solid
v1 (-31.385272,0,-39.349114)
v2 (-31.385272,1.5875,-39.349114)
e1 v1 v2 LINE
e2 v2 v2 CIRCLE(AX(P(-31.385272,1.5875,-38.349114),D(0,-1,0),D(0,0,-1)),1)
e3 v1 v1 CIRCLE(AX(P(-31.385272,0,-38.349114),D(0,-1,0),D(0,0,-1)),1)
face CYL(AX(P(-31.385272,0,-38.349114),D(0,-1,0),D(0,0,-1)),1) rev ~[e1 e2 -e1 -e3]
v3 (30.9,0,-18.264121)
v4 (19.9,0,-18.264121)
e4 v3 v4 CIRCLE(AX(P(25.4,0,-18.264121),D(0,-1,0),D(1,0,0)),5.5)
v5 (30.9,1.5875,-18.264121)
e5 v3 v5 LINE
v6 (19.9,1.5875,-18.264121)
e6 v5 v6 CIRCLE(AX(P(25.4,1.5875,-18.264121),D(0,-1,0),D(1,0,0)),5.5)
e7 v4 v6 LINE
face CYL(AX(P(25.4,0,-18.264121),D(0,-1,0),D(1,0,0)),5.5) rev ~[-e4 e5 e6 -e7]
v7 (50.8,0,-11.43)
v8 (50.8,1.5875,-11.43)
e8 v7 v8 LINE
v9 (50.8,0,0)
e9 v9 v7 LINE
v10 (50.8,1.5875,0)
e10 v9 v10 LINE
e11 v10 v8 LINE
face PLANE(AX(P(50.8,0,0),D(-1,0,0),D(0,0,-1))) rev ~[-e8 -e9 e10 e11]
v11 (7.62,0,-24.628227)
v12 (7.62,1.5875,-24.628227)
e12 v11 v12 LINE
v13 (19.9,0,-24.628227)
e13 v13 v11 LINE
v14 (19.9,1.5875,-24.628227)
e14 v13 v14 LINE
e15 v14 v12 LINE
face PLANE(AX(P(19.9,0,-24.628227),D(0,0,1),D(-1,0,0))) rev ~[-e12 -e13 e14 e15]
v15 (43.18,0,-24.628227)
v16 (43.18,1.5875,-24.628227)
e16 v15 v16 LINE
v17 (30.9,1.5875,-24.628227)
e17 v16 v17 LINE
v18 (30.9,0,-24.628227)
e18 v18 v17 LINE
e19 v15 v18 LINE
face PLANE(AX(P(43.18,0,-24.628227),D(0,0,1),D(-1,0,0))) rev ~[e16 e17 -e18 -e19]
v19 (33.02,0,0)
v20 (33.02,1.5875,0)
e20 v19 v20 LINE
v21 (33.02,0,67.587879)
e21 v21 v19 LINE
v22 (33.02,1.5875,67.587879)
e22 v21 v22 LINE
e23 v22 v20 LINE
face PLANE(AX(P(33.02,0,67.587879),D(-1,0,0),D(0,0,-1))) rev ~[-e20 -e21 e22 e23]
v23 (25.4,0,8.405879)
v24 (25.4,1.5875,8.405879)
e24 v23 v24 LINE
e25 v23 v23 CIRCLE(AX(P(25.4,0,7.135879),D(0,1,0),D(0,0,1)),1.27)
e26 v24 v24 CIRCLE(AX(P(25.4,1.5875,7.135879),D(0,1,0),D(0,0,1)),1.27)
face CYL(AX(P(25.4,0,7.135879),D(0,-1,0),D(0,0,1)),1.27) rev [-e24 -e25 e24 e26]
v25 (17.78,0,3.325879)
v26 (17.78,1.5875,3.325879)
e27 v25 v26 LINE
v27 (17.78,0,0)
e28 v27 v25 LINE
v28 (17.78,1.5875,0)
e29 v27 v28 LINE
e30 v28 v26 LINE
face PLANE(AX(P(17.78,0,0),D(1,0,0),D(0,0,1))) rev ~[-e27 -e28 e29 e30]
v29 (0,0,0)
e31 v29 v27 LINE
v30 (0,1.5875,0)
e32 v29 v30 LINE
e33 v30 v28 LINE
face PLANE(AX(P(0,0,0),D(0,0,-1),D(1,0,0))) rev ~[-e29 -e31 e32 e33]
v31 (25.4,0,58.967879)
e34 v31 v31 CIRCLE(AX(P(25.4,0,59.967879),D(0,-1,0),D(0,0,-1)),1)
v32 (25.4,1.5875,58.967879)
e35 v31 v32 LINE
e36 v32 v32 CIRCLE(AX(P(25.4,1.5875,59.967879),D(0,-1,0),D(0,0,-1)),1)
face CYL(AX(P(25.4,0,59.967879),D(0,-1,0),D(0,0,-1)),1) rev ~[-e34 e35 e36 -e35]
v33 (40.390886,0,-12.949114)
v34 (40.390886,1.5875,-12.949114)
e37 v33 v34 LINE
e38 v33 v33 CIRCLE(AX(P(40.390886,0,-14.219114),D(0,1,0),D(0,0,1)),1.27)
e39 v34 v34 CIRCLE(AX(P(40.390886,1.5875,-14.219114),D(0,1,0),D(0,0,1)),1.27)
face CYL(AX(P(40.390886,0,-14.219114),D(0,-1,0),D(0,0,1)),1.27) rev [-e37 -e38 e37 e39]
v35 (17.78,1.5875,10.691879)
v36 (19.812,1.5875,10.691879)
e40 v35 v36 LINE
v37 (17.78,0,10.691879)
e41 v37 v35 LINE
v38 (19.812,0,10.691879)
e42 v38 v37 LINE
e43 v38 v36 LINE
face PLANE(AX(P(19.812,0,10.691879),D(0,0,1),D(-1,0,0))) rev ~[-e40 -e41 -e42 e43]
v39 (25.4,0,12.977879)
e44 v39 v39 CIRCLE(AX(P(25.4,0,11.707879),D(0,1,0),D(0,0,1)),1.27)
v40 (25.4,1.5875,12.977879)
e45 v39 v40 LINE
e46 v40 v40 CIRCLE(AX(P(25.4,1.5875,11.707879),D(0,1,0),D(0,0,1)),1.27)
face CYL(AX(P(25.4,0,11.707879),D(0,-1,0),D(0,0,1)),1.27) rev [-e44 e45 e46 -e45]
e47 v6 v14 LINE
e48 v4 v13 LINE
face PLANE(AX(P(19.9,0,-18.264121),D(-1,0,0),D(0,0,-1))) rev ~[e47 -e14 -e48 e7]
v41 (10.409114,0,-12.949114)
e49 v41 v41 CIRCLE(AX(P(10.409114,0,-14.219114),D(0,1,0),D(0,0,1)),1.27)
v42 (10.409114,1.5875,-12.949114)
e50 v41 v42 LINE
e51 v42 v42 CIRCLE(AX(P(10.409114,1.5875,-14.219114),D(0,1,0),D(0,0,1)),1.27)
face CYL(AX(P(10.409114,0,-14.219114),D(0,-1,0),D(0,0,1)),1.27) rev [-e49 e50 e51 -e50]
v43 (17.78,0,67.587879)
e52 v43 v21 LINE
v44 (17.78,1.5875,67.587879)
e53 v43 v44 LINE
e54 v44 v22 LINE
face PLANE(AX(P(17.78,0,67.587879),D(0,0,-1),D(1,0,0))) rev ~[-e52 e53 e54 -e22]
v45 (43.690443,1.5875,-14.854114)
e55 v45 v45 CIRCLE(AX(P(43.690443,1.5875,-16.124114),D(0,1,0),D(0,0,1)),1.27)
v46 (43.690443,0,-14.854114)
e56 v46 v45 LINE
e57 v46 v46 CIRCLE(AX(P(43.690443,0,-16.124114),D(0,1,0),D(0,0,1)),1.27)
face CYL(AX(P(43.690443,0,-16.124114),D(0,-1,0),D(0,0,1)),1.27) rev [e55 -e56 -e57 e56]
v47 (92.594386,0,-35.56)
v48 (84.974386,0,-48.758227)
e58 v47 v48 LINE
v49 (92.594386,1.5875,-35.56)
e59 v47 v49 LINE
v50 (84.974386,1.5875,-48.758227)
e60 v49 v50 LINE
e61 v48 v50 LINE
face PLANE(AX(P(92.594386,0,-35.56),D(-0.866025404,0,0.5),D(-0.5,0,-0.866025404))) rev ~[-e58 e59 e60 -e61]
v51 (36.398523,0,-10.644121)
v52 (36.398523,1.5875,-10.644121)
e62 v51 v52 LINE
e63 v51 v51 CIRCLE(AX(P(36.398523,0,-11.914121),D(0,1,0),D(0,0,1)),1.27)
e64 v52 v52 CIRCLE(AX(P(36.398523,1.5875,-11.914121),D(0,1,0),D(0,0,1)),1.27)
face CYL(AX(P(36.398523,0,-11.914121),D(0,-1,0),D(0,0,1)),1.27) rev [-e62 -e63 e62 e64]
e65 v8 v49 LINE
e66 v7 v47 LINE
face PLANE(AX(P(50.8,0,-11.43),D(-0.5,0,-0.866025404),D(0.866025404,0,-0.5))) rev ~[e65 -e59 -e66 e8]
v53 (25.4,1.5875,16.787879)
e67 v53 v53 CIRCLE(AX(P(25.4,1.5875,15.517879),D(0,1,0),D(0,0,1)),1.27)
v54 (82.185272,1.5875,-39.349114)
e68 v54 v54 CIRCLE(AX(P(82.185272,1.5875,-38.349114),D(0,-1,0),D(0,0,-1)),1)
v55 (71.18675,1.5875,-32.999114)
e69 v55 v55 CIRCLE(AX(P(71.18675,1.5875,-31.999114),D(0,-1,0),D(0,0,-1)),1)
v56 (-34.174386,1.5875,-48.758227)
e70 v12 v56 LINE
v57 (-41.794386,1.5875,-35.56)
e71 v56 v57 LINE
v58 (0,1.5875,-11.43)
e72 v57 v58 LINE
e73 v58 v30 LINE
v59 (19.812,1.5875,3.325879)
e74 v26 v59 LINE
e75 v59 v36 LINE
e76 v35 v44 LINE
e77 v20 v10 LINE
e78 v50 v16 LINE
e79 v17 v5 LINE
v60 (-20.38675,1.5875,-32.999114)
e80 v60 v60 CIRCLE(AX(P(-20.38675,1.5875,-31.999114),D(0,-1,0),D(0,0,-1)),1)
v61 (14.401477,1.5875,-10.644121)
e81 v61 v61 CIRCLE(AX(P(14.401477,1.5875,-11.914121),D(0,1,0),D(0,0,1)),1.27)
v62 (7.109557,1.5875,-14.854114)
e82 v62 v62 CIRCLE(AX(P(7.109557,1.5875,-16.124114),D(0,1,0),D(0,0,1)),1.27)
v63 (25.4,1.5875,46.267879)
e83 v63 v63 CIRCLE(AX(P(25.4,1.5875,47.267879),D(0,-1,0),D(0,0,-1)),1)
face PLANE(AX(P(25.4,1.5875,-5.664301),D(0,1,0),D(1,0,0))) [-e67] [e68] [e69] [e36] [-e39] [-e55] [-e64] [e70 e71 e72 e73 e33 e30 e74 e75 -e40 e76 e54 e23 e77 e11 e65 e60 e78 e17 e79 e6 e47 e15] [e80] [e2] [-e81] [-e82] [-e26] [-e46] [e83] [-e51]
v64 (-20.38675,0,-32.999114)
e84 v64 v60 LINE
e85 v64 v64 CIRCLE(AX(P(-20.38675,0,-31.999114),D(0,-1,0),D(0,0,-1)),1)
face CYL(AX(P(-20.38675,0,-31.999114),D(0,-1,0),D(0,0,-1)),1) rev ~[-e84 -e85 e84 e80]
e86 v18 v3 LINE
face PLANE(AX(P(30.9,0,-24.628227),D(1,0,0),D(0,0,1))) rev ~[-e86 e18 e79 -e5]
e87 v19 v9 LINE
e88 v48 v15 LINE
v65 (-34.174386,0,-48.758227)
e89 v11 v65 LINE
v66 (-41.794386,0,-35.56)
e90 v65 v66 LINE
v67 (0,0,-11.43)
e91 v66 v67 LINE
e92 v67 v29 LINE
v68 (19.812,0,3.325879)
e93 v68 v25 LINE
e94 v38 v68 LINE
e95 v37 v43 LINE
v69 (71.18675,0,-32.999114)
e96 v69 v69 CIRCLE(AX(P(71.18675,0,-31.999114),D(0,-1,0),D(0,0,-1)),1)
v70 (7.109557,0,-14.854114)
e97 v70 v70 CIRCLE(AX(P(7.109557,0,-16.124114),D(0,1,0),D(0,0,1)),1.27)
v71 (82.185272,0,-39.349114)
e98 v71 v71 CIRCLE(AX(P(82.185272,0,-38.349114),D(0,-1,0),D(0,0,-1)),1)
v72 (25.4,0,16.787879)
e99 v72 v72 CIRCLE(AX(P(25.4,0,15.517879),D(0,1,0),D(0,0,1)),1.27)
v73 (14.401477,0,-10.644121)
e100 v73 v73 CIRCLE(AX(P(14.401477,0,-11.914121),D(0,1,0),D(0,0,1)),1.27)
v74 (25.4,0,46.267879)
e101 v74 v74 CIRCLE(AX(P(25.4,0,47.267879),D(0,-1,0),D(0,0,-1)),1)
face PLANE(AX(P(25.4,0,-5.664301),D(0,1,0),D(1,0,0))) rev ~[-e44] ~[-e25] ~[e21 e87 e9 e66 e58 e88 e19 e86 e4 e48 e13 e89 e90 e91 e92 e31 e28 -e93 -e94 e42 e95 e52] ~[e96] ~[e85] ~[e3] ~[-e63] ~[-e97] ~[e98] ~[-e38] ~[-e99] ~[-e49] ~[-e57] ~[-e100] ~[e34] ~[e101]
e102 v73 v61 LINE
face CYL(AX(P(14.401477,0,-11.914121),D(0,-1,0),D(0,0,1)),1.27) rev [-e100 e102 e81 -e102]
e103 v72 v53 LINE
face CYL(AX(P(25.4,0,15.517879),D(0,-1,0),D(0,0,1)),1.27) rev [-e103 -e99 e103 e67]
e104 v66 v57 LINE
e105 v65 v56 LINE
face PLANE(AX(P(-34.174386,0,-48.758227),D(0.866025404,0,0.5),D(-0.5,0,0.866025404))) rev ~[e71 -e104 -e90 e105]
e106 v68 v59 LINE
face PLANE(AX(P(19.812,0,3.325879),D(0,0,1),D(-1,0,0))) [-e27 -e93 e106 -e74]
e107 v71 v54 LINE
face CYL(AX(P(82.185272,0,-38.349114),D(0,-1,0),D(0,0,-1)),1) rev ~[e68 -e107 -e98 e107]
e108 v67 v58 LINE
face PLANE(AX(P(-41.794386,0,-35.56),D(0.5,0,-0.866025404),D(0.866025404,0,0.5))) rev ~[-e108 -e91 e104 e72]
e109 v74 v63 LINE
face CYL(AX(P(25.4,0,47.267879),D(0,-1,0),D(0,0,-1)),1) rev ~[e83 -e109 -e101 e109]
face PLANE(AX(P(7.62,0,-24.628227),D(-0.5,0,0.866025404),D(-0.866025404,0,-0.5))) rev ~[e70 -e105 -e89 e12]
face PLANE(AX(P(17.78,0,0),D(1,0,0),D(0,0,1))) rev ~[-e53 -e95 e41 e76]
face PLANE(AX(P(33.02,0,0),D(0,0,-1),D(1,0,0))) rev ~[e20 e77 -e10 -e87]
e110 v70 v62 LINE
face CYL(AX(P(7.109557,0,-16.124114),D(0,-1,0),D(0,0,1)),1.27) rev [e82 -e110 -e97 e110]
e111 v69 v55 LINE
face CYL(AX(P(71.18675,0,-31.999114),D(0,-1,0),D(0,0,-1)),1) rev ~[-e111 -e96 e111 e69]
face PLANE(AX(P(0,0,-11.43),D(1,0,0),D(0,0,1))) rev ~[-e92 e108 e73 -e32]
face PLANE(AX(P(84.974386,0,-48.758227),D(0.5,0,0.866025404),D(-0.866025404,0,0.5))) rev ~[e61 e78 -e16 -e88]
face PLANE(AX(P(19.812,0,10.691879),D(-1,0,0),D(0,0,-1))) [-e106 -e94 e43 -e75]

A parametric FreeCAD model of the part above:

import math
import FreeCAD as App
import Part
import Sketcher
Q = App.Units.Quantity

doc = App.newDocument("Part")
body = doc.addObject("PartDesign::Body", "Body")

sketch1 = doc.addObject("Sketcher::SketchObject", "Sketch")
body.addObject(sketch1)
sketch1.AttachmentSupport = (doc.XZ_Plane, [""])
sketch1.MapMode = "FlatFace"
sketch1.addGeometry(Part.LineSegment(App.Vector(-41.8, -35.6, 0), App.Vector(0, -11.4, 0)), False)
sketch1.addGeometry(Part.LineSegment(App.Vector(0, -11.4, 0), App.Vector(0, 0, 0)), False)
sketch1.addGeometry(Part.LineSegment(App.Vector(0, 0, 0), App.Vector(17.8, 0, 0)), False)
sketch1.addGeometry(Part.LineSegment(App.Vector(17.8, 0, 0), App.Vector(17.8, 67.6, 0)), False)
sketch1.addGeometry(Part.LineSegment(App.Vector(17.8, 67.6, 0), App.Vector(33, 67.6, 0)), False)
sketch1.addGeometry(Part.LineSegment(App.Vector(33, 67.6, 0), App.Vector(33, 0, 0)), False)
sketch1.addGeometry(Part.LineSegment(App.Vector(33, 0, 0), App.Vector(50.8, 0, 0)), False)
sketch1.addGeometry(Part.LineSegment(App.Vector(50.8, 0, 0), App.Vector(50.8, -11.4, 0)), False)
sketch1.addGeometry(Part.LineSegment(App.Vector(50.8, -11.4, 0), App.Vector(92.6, -35.6, 0)), False)
sketch1.addGeometry(Part.LineSegment(App.Vector(92.6, -35.6, 0), App.Vector(85, -48.8, 0)), False)
sketch1.addGeometry(Part.LineSegment(App.Vector(85, -48.8, 0), App.Vector(43.2, -24.6, 0)), False)
sketch1.addGeometry(Part.LineSegment(App.Vector(43.2, -24.6, 0), App.Vector(30.9, -24.6, 0)), False)
sketch1.addGeometry(Part.LineSegment(App.Vector(30.9, -24.6, 0), App.Vector(30.9, -18.3, 0)), False)
sketch1.addGeometry(Part.ArcOfCircle(Part.Circle(App.Vector(25.4, -18.3, 0), App.Vector(0, 0, 1), 5.5), math.radians(0), math.radians(180)), False)
sketch1.addGeometry(Part.LineSegment(App.Vector(19.9, -18.3, 0), App.Vector(19.9, -24.6, 0)), False)
sketch1.addGeometry(Part.LineSegment(App.Vector(19.9, -24.6, 0), App.Vector(7.6, -24.6, 0)), False)
sketch1.addGeometry(Part.LineSegment(App.Vector(7.6, -24.6, 0), App.Vector(-34.2, -48.8, 0)), False)
sketch1.addGeometry(Part.LineSegment(App.Vector(-34.2, -48.8, 0), App.Vector(-41.8, -35.6, 0)), False)
sketch1.addGeometry(Part.Circle(App.Vector(25.4, 15.5, 0), App.Vector(0, 0, 1), 1.3), False)
sketch1.addGeometry(Part.Circle(App.Vector(25.4, 11.7, 0), App.Vector(0, 0, 1), 1.3), False)
sketch1.addGeometry(Part.Circle(App.Vector(25.4, 7.1, 0), App.Vector(0, 0, 1), 1.3), False)
sketch1.addGeometry(Part.Circle(App.Vector(14.4, -11.9, 0), App.Vector(0, 0, 1), 1.3), False)
sketch1.addGeometry(Part.Circle(App.Vector(10.4, -14.2, 0), App.Vector(0, 0, 1), 1.3), False)
sketch1.addGeometry(Part.Circle(App.Vector(7.1, -16.1, 0), App.Vector(0, 0, 1), 1.3), False)
sketch1.addGeometry(Part.Circle(App.Vector(36.4, -11.9, 0), App.Vector(0, 0, 1), 1.3), False)
sketch1.addGeometry(Part.Circle(App.Vector(40.4, -14.2, 0), App.Vector(0, 0, 1), 1.3), False)
sketch1.addGeometry(Part.Circle(App.Vector(43.7, -16.1, 0), App.Vector(0, 0, 1), 1.3), False)
sketch1.addConstraint(Sketcher.Constraint("Coincident", 0, 2, 1, 1))
sketch1.addConstraint(Sketcher.Constraint("Coincident", 1, 2, 2, 1))
sketch1.addConstraint(Sketcher.Constraint("Coincident", 2, 2, 3, 1))
sketch1.addConstraint(Sketcher.Constraint("Coincident", 3, 2, 4, 1))
sketch1.addConstraint(Sketcher.Constraint("Coincident", 4, 2, 5, 1))
sketch1.addConstraint(Sketcher.Constraint("Coincident", 5, 2, 6, 1))
sketch1.addConstraint(Sketcher.Constraint("Coincident", 6, 2, 7, 1))
sketch1.addConstraint(Sketcher.Constraint("Coincident", 7, 2, 8, 1))
sketch1.addConstraint(Sketcher.Constraint("Coincident", 8, 2, 9, 1))
sketch1.addConstraint(Sketcher.Constraint("Coincident", 9, 2, 10, 1))
sketch1.addConstraint(Sketcher.Constraint("Coincident", 10, 2, 11, 1))
sketch1.addConstraint(Sketcher.Constraint("Coincident", 11, 2, 12, 1))
sketch1.addConstraint(Sketcher.Constraint("Tangent", 12, 2, 13, 1))
sketch1.addConstraint(Sketcher.Constraint("Tangent", 13, 2, 14, 1))
sketch1.addConstraint(Sketcher.Constraint("Coincident", 14, 2, 15, 1))
sketch1.addConstraint(Sketcher.Constraint("Coincident", 15, 2, 16, 1))
sketch1.addConstraint(Sketcher.Constraint("Coincident", 16, 2, 17, 1))
sketch1.addConstraint(Sketcher.Constraint("Coincident", 17, 2, 0, 1))
sketch1.addConstraint(Sketcher.Constraint("Vertical", 1))
sketch1.addConstraint(Sketcher.Constraint("Horizontal", 2))
sketch1.addConstraint(Sketcher.Constraint("Vertical", 3))
sketch1.addConstraint(Sketcher.Constraint("Horizontal", 4))
sketch1.addConstraint(Sketcher.Constraint("Vertical", 5))
sketch1.addConstraint(Sketcher.Constraint("Horizontal", 6))
sketch1.addConstraint(Sketcher.Constraint("Vertical", 7))
sketch1.addConstraint(Sketcher.Constraint("Horizontal", 11))
sketch1.addConstraint(Sketcher.Constraint("Vertical", 12))
sketch1.addConstraint(Sketcher.Constraint("Vertical", 14))
sketch1.addConstraint(Sketcher.Constraint("Horizontal", 15))
sketch1.addConstraint(Sketcher.Constraint("Coincident", 1, 2, -1, 1))
sketch1.addConstraint(Sketcher.Constraint("Equal", 18, 19))
sketch1.addConstraint(Sketcher.Constraint("Equal", 19, 20))
sketch1.addConstraint(Sketcher.Constraint("Equal", 20, 21))
sketch1.addConstraint(Sketcher.Constraint("Equal", 21, 22))
sketch1.addConstraint(Sketcher.Constraint("Equal", 22, 23))
sketch1.addConstraint(Sketcher.Constraint("Equal", 23, 24))
sketch1.addConstraint(Sketcher.Constraint("Equal", 24, 25))
sketch1.addConstraint(Sketcher.Constraint("Equal", 25, 26))
sketch1.addConstraint(Sketcher.Constraint("PointOnObject", 5, 2, -1))
sketch1.addConstraint(Sketcher.Constraint("Perpendicular", 8, 9))
sketch1.addConstraint(Sketcher.Constraint("Perpendicular", 9, 10))
sketch1.addConstraint(Sketcher.Constraint("Parallel", 0, 16))
sketch1.addConstraint(Sketcher.Constraint("Perpendicular", 16, 17))
sketch1.addConstraint(Sketcher.Constraint("Horizontal", 21, 3, 24, 3))
sketch1.addConstraint(Sketcher.Constraint("Horizontal", 22, 3, 25, 3))
sketch1.addConstraint(Sketcher.Constraint("Horizontal", 23, 3, 26, 3))
sketch1.addConstraint(Sketcher.Constraint("Horizontal", 0, 2, 7, 2))
sketch1.addConstraint(Sketcher.Constraint("Horizontal", 11, 2, 14, 2))
sketch1.addConstraint(Sketcher.Constraint("Horizontal", 9, 2, 16, 2))
sketch1.addConstraint(Sketcher.Constraint("Horizontal", 8, 2, 17, 2))
sketch1.addConstraint(Sketcher.Constraint("Vertical", 13, 3, 18, 3))
sketch1.addConstraint(Sketcher.Constraint("Vertical", 18, 3, 19, 3))
sketch1.addConstraint(Sketcher.Constraint("Vertical", 19, 3, 20, 3))
sketch1.addConstraint(Sketcher.Constraint("Equal", 2, 6))
sketch1.addConstraint(Sketcher.Constraint("Equal", 11, 15))
sketch1.addConstraint(Sketcher.Constraint("Equal", 0, 8))
sketch1.addConstraint(Sketcher.Constraint("Equal", 8, 10))
sketch1.addConstraint(Sketcher.Constraint("Diameter", 18, Q("0.1 in")))
sketch1.addConstraint(Sketcher.Constraint("DistanceX", 2, 1, 2, 2, Q("0.7 in")))
sketch1.addConstraint(Sketcher.Constraint("DistanceX", 4, 1, 4, 2, Q("0.6 in")))
sketch1.addConstraint(Sketcher.Constraint("Angle", 0, Q("30 deg")))
sketch1.addConstraint(Sketcher.Constraint("DistanceY", 13, 3, 20, 3, Q("1 in")))
sketch1.addConstraint(Sketcher.Constraint("Distance", 0, Q("1.9 in")))
sketch1.addConstraint(Sketcher.Constraint("Distance", 9, Q("0.6 in")))
sketch1.addConstraint(Sketcher.Constraint("DistanceY", 1, 1, 1, 2, Q("0.45 in")))
sketch1.addConstraint(Sketcher.Constraint("DistanceY", 19, 3, 3, 2, Q("2.2 in")))
sketch1.addConstraint(Sketcher.Constraint("Radius", 13, 5.5))
sketch1.addConstraint(Sketcher.Constraint("DistanceY", 13, 3, 18, 3, Q("1.33 in")))
sketch1.addConstraint(Sketcher.Constraint("DistanceY", 19, 3, 18, 3, Q("0.15 in")))
sketch1.addConstraint(Sketcher.Constraint("DistanceY", 13, 3, 21, 3, Q("0.25 in")))
sketch1.addConstraint(Sketcher.Constraint("DistanceY", 23, 3, 22, 3, Q("0.075 in")))
sketch1.addConstraint(Sketcher.Constraint("DistanceY", 3, 1, 3, 2, 67.587879))
sketch1.addConstraint(Sketcher.Constraint("DistanceX", 25, 3, 8, 2, 52.2035))
sketch1.addConstraint(Sketcher.Constraint("DistanceX", 16, 2, 22, 3, 44.5835))
sketch1.addConstraint(Sketcher.Constraint("DistanceX", 23, 3, 21, 3, 7.291921))
sketch1.addConstraint(Sketcher.Constraint("DistanceX", 22, 3, 24, 3, 25.989409))
sketch1.addConstraint(Sketcher.Constraint("DistanceX", 21, 3, 25, 3, 25.989409))
sketch1.addConstraint(Sketcher.Constraint("DistanceX", 24, 3, 26, 3, 7.291921))
sketch1.addConstraint(Sketcher.Constraint("DistanceY", 22, 3, -1, 1, 14.219114))
pad1 = doc.addObject("PartDesign::Pad", "Pad")
body.addObject(pad1)
pad1.Profile = sketch1
pad1.Length = Q("0.0625 in")
pad1.Reversed = True

sketch2 = doc.addObject("Sketcher::SketchObject", "Sketch001")
body.addObject(sketch2)
sketch2.AttachmentSupport = (doc.XZ_Plane, [""])
sketch2.MapMode = "FlatFace"
sketch2.addGeometry(Part.LineSegment(App.Vector(19.8, 3.3, 0), App.Vector(19.8, 10.7, 0)), False)
sketch2.addGeometry(Part.LineSegment(App.Vector(19.8, 10.7, 0), App.Vector(17.8, 10.7, 0)), False)
sketch2.addGeometry(Part.LineSegment(App.Vector(17.8, 10.7, 0), App.Vector(17.8, 3.3, 0)), False)
sketch2.addGeometry(Part.LineSegment(App.Vector(17.8, 3.3, 0), App.Vector(19.8, 3.3, 0)), False)
sketch2.addConstraint(Sketcher.Constraint("Coincident", 0, 2, 1, 1))
sketch2.addConstraint(Sketcher.Constraint("Coincident", 1, 2, 2, 1))
sketch2.addConstraint(Sketcher.Constraint("Coincident", 2, 2, 3, 1))
sketch2.addConstraint(Sketcher.Constraint("Coincident", 3, 2, 0, 1))
sketch2.addConstraint(Sketcher.Constraint("Vertical", 0))
sketch2.addConstraint(Sketcher.Constraint("Horizontal", 1))
sketch2.addConstraint(Sketcher.Constraint("Vertical", 2))
sketch2.addConstraint(Sketcher.Constraint("Horizontal", 3))
sketch2.addConstraint(Sketcher.Constraint("DistanceX", 1, 2, 1, 1, Q("0.08 in")))
sketch2.addConstraint(Sketcher.Constraint("DistanceY", 0, 1, 0, 2, Q("0.29 in")))
sketch2.addConstraint(Sketcher.Constraint("DistanceX", -1, 1, 1, 2, Q("0.7 in")))
sketch2.addConstraint(Sketcher.Constraint("DistanceY", -1, 1, 0, 2, 10.691879))
pocket1 = doc.addObject("PartDesign::Pocket", "Pocket")
body.addObject(pocket1)
pocket1.Profile = sketch2
pocket1.Length = Q("0.1 in")

sketch3 = doc.addObject("Sketcher::SketchObject", "Sketch002")
body.addObject(sketch3)
sketch3.AttachmentSupport = (doc.XZ_Plane, [""])
sketch3.MapMode = "FlatFace"
sketch3.addGeometry(Part.Circle(App.Vector(25.4, 60, 0), App.Vector(0, 0, 1), 1), False)
sketch3.addGeometry(Part.Circle(App.Vector(25.4, 47.3, 0), App.Vector(0, 0, 1), 1), False)
sketch3.addGeometry(Part.Circle(App.Vector(71.2, -32, 0), App.Vector(0, 0, 1), 1), False)
sketch3.addGeometry(Part.Circle(App.Vector(82.2, -38.3, 0), App.Vector(0, 0, 1), 1), False)
sketch3.addGeometry(Part.Circle(App.Vector(-31.4, -38.3, 0), App.Vector(0, 0, 1), 1), False)
sketch3.addGeometry(Part.Circle(App.Vector(-20.4, -32, 0), App.Vector(0, 0, 1), 1), False)
sketch3.addConstraint(Sketcher.Constraint("Equal", 0, 1))
sketch3.addConstraint(Sketcher.Constraint("Equal", 1, 2))
sketch3.addConstraint(Sketcher.Constraint("Equal", 2, 3))
sketch3.addConstraint(Sketcher.Constraint("Equal", 3, 4))
sketch3.addConstraint(Sketcher.Constraint("Equal", 4, 5))
sketch3.addConstraint(Sketcher.Constraint("Horizontal", 3, 3, 4, 3))
sketch3.addConstraint(Sketcher.Constraint("Horizontal", 2, 3, 5, 3))
sketch3.addConstraint(Sketcher.Constraint("Vertical", 0, 3, 1, 3))
sketch3.addConstraint(Sketcher.Constraint("DistanceX", -1, 1, 0, 3, Q("1 in")))
sketch3.addConstraint(Sketcher.Constraint("DistanceY", 1, 3, 0, 3, Q("0.5 in")))
sketch3.addConstraint(Sketcher.Constraint("Diameter", 0, 2.0))
sketch3.addConstraint(Sketcher.Constraint("DistanceY", 3, 3, 2, 3, Q("0.25 in")))
sketch3.addConstraint(Sketcher.Constraint("DistanceX", 5, 3, 2, 3, 91.5735))
sketch3.addConstraint(Sketcher.Constraint("DistanceY", -1, 1, 0, 3, 59.967879))
sketch3.addConstraint(Sketcher.Constraint("DistanceX", -1, 1, 2, 3, 71.18675))
sketch3.addConstraint(Sketcher.Constraint("DistanceY", 2, 3, -1, 1, 31.999114))
sketch3.addConstraint(Sketcher.Constraint("DistanceX", -1, 1, 3, 3, 82.185272))
sketch3.addConstraint(Sketcher.Constraint("DistanceX", 4, 3, -1, 1, 31.385272))
pocket2 = doc.addObject("PartDesign::Pocket", "Pocket001")
body.addObject(pocket2)
pocket2.Profile = sketch3
pocket2.Length = Q("0.1 in")

doc.recompute()
